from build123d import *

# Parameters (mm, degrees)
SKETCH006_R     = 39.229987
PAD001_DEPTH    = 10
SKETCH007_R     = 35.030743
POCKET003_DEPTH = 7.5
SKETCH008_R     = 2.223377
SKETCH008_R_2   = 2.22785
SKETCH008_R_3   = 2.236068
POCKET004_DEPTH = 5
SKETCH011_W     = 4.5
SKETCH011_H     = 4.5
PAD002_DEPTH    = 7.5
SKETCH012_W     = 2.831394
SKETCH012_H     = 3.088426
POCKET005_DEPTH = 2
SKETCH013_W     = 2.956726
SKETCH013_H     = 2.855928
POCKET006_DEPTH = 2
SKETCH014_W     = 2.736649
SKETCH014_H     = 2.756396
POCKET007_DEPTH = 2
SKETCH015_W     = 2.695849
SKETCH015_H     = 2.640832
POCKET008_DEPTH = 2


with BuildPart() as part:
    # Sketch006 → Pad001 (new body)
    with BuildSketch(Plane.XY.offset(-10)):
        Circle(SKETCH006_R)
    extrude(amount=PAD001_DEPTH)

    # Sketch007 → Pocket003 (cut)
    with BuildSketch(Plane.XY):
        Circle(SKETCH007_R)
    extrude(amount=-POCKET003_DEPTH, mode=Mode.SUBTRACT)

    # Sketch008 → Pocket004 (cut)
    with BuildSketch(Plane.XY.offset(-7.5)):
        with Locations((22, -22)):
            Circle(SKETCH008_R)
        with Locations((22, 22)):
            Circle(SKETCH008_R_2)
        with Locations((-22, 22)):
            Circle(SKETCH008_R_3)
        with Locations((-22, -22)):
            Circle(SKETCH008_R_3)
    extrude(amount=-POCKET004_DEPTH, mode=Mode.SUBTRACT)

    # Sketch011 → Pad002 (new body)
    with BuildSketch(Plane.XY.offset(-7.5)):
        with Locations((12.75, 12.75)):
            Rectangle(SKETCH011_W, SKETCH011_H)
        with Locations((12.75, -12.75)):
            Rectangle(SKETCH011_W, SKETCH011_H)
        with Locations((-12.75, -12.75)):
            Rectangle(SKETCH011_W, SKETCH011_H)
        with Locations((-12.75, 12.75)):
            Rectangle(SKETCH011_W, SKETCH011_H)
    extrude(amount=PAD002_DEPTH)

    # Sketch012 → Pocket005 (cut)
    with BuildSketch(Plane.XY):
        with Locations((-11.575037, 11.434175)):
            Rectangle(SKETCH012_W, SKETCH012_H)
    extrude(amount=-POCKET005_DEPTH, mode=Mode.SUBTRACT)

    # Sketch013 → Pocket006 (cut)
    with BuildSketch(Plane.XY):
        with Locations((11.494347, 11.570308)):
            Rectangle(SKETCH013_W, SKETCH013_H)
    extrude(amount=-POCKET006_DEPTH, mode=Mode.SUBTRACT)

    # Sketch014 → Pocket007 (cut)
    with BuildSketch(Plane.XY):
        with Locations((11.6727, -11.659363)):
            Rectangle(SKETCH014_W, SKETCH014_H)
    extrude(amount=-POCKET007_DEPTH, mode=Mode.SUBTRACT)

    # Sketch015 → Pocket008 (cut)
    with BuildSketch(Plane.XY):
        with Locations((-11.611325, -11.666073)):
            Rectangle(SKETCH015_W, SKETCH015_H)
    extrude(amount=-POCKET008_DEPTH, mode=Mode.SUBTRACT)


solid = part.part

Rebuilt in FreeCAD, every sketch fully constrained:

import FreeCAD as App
import Part
import Sketcher
from FreeCAD import Vector

doc = App.newDocument("Part")
body = doc.addObject("PartDesign::Body", "Body")

# Sketch on XY plane
sketch1 = body.newObject("Sketcher::SketchObject", "Sketch")
sketch1.AttachmentSupport = (doc.getObject("XY_Plane"), [""])
sketch1.MapMode = "FlatFace"
sketch1.AttachmentOffset = App.Placement(Vector(0, 0, -10), App.Rotation())
sketch1.addGeometry(Part.Circle(Vector(0, 0, 0), Vector(0, 0, 1), 39), False)
sketch1.addConstraint([
    Sketcher.Constraint("Coincident", 0, 3, -1, 1),
    Sketcher.Constraint("Diameter", 0, 78.459974),
])
pad1 = body.newObject("PartDesign::Pad", "Pad")
pad1.Profile = sketch1
pad1.Length = 10

# Sketch on XY plane
sketch2 = body.newObject("Sketcher::SketchObject", "Sketch001")
sketch2.AttachmentSupport = (doc.getObject("XY_Plane"), [""])
sketch2.MapMode = "FlatFace"
sketch2.addGeometry(Part.Circle(Vector(0, 0, 0), Vector(0, 0, 1), 35), False)
sketch2.addConstraint([
    Sketcher.Constraint("Coincident", 0, 3, -1, 1),
    Sketcher.Constraint("Diameter", 0, 70.061486),
])
pocket1 = body.newObject("PartDesign::Pocket", "Pocket")
pocket1.Profile = sketch2
pocket1.Length = 7.5

# Sketch on XY plane
sketch3 = body.newObject("Sketcher::SketchObject", "Sketch002")
sketch3.AttachmentSupport = (doc.getObject("XY_Plane"), [""])
sketch3.MapMode = "FlatFace"
sketch3.AttachmentOffset = App.Placement(Vector(0, 0, -7.5), App.Rotation())
sketch3.addGeometry([
    Part.Circle(Vector(22, -22, 0), Vector(0, 0, 1), 2.2),
    Part.Circle(Vector(22, 22, 0), Vector(0, 0, 1), 2.2),
    Part.Circle(Vector(-22, 22, 0), Vector(0, 0, 1), 2.2),
    Part.Circle(Vector(-22, -22, 0), Vector(0, 0, 1), 2.2),
], False)
sketch3.addConstraint([
    Sketcher.Constraint("Equal", 2, 3),
    Sketcher.Constraint("Symmetric", 0, 3, 2, 3, -1, 1),
    Sketcher.Constraint("Symmetric", 1, 3, 3, 3, -1, 1),
    Sketcher.Constraint("Symmetric", 1, 3, 2, 3, -2),
    Sketcher.Constraint("DistanceX", -1, 1, 0, 3, 22.0),
    Sketcher.Constraint("DistanceY", 0, 3, -1, 1, 22.0),
    Sketcher.Constraint("Diameter", 1, 4.4557),
    Sketcher.Constraint("Diameter", 0, 4.446754),
    Sketcher.Constraint("Diameter", 2, 4.472136),
])
pocket2 = body.newObject("PartDesign::Pocket", "Pocket001")
pocket2.Profile = sketch3
pocket2.Length = 5

# Sketch on XY plane
sketch4 = body.newObject("Sketcher::SketchObject", "Sketch003")
sketch4.AttachmentSupport = (doc.getObject("XY_Plane"), [""])
sketch4.MapMode = "FlatFace"
sketch4.AttachmentOffset = App.Placement(Vector(0, 0, -7.5), App.Rotation())
sketch4.addGeometry([
    Part.LineSegment(Vector(10.5, 15, 0), Vector(10.5, 10.5, 0)),  # 0
    Part.LineSegment(Vector(10.5, 10.5, 0), Vector(15, 10.5, 0)),  # 1
    Part.LineSegment(Vector(15, 10.5, 0), Vector(15, 15, 0)),  # 2
    Part.LineSegment(Vector(15, 15, 0), Vector(10.5, 15, 0)),  # 3
    Part.LineSegment(Vector(10.5, -10.5, 0), Vector(10.5, -15, 0)),  # 4
    Part.LineSegment(Vector(10.5, -15, 0), Vector(15, -15, 0)),  # 5
    Part.LineSegment(Vector(15, -15, 0), Vector(15, -10.5, 0)),  # 6
    Part.LineSegment(Vector(15, -10.5, 0), Vector(10.5, -10.5, 0)),  # 7
    Part.LineSegment(Vector(-15, -10.5, 0), Vector(-15, -15, 0)),  # 8
    Part.LineSegment(Vector(-15, -15, 0), Vector(-10.5, -15, 0)),  # 9
    Part.LineSegment(Vector(-10.5, -15, 0), Vector(-10.5, -10.5, 0)),  # 10
    Part.LineSegment(Vector(-10.5, -10.5, 0), Vector(-15, -10.5, 0)),  # 11
    Part.LineSegment(Vector(-15, 15, 0), Vector(-15, 10.5, 0)),  # 12
    Part.LineSegment(Vector(-15, 10.5, 0), Vector(-10.5, 10.5, 0)),  # 13
    Part.LineSegment(Vector(-10.5, 10.5, 0), Vector(-10.5, 15, 0)),  # 14
    Part.LineSegment(Vector(-10.5, 15, 0), Vector(-15, 15, 0)),  # 15
], False)
sketch4.addConstraint([
    Sketcher.Constraint("Coincident", 0, 2, 1, 1),
    Sketcher.Constraint("Coincident", 1, 2, 2, 1),
    Sketcher.Constraint("Coincident", 2, 2, 3, 1),
    Sketcher.Constraint("Coincident", 3, 2, 0, 1),
    Sketcher.Constraint("Coincident", 4, 2, 5, 1),
    Sketcher.Constraint("Coincident", 5, 2, 6, 1),
    Sketcher.Constraint("Coincident", 6, 2, 7, 1),
    Sketcher.Constraint("Coincident", 7, 2, 4, 1),
    Sketcher.Constraint("Coincident", 8, 2, 9, 1),
    Sketcher.Constraint("Coincident", 9, 2, 10, 1),
    Sketcher.Constraint("Coincident", 10, 2, 11, 1),
    Sketcher.Constraint("Coincident", 11, 2, 8, 1),
    Sketcher.Constraint("Coincident", 12, 2, 13, 1),
    Sketcher.Constraint("Coincident", 13, 2, 14, 1),
    Sketcher.Constraint("Coincident", 14, 2, 15, 1),
    Sketcher.Constraint("Coincident", 15, 2, 12, 1),
    Sketcher.Constraint("Vertical", 0),
    Sketcher.Constraint("Horizontal", 1),
    Sketcher.Constraint("Vertical", 2),
    Sketcher.Constraint("Horizontal", 3),
    Sketcher.Constraint("Vertical", 4),
    Sketcher.Constraint("Horizontal", 5),
    Sketcher.Constraint("Vertical", 6),
    Sketcher.Constraint("Horizontal", 7),
    Sketcher.Constraint("Vertical", 8),
    Sketcher.Constraint("Horizontal", 9),
    Sketcher.Constraint("Vertical", 10),
    Sketcher.Constraint("Horizontal", 11),
    Sketcher.Constraint("Vertical", 12),
    Sketcher.Constraint("Horizontal", 13),
    Sketcher.Constraint("Vertical", 14),
    Sketcher.Constraint("Horizontal", 15),
    Sketcher.Constraint("Symmetric", 2, 2, 8, 2, -1, 1),
    Sketcher.Constraint("Symmetric", 0, 2, 10, 2, -1, 1),
    Sketcher.Constraint("Symmetric", 6, 2, 12, 2, -1, 1),
    Sketcher.Constraint("Symmetric", 4, 2, 14, 2, -1, 1),
    Sketcher.Constraint("Symmetric", 5, 2, 8, 2, -2),
    Sketcher.Constraint("Symmetric", 7, 2, 10, 2, -2),
    Sketcher.Constraint("Equal", 15, 0),
    Sketcher.Constraint("DistanceX", 1, 1, 1, 2, 4.5),
    Sketcher.Constraint("DistanceX", -1, 1, 1, 2, 15.0),
    Sketcher.Constraint("DistanceY", -1, 1, 2, 2, 15.0),
])
pad2 = body.newObject("PartDesign::Pad", "Pad001")
pad2.Profile = sketch4
pad2.Length = 7.5

# Sketch on XY plane
sketch5 = body.newObject("Sketcher::SketchObject", "Sketch004")
sketch5.AttachmentSupport = (doc.getObject("XY_Plane"), [""])
sketch5.MapMode = "FlatFace"
sketch5.addGeometry([
    Part.LineSegment(Vector(-13, 13, 0), Vector(-13, 9.9, 0)),
    Part.LineSegment(Vector(-13, 9.9, 0), Vector(-10.2, 9.9, 0)),
    Part.LineSegment(Vector(-10.2, 9.9, 0), Vector(-10.2, 13, 0)),
    Part.LineSegment(Vector(-10.2, 13, 0), Vector(-13, 13, 0)),
], False)
sketch5.addConstraint([
    Sketcher.Constraint("Coincident", 0, 2, 1, 1),
    Sketcher.Constraint("Coincident", 1, 2, 2, 1),
    Sketcher.Constraint("Coincident", 2, 2, 3, 1),
    Sketcher.Constraint("Coincident", 3, 2, 0, 1),
    Sketcher.Constraint("Vertical", 0),
    Sketcher.Constraint("Horizontal", 1),
    Sketcher.Constraint("Vertical", 2),
    Sketcher.Constraint("Horizontal", 3),
    Sketcher.Constraint("DistanceX", 1, 1, 1, 2, 2.831394),
    Sketcher.Constraint("DistanceY", 0, 2, 0, 1, 3.088426),
    Sketcher.Constraint("DistanceX", 1, 2, -1, 1, 10.15934),
    Sketcher.Constraint("DistanceY", -1, 1, 2, 2, 12.978388),
])
pocket3 = body.newObject("PartDesign::Pocket", "Pocket002")
pocket3.Profile = sketch5
pocket3.Length = 2

# Sketch on XY plane
sketch6 = body.newObject("Sketcher::SketchObject", "Sketch005")
sketch6.AttachmentSupport = (doc.getObject("XY_Plane"), [""])
sketch6.MapMode = "FlatFace"
sketch6.addGeometry([
    Part.LineSegment(Vector(10, 13, 0), Vector(10, 10.1, 0)),
    Part.LineSegment(Vector(10, 10.1, 0), Vector(13, 10.1, 0)),
    Part.LineSegment(Vector(13, 10.1, 0), Vector(13, 13, 0)),
    Part.LineSegment(Vector(13, 13, 0), Vector(10, 13, 0)),
], False)
sketch6.addConstraint([
    Sketcher.Constraint("Coincident", 0, 2, 1, 1),
    Sketcher.Constraint("Coincident", 1, 2, 2, 1),
    Sketcher.Constraint("Coincident", 2, 2, 3, 1),
    Sketcher.Constraint("Coincident", 3, 2, 0, 1),
    Sketcher.Constraint("Vertical", 0),
    Sketcher.Constraint("Horizontal", 1),
    Sketcher.Constraint("Vertical", 2),
    Sketcher.Constraint("Horizontal", 3),
    Sketcher.Constraint("DistanceY", 0, 2, 0, 1, 2.855928),
    Sketcher.Constraint("DistanceX", 1, 1, 1, 2, 2.956726),
    Sketcher.Constraint("DistanceX", -1, 1, 1, 2, 12.97271),
    Sketcher.Constraint("DistanceY", -1, 1, 0, 2, 10.142344),
])
pocket4 = body.newObject("PartDesign::Pocket", "Pocket003")
pocket4.Profile = sketch6
pocket4.Length = 2

# Sketch on XY plane
sketch7 = body.newObject("Sketcher::SketchObject", "Sketch006")
sketch7.AttachmentSupport = (doc.getObject("XY_Plane"), [""])
sketch7.MapMode = "FlatFace"
sketch7.addGeometry([
    Part.LineSegment(Vector(10.3, -10.3, 0), Vector(10.3, -13, 0)),
    Part.LineSegment(Vector(10.3, -13, 0), Vector(13, -13, 0)),
    Part.LineSegment(Vector(13, -13, 0), Vector(13, -10.3, 0)),
    Part.LineSegment(Vector(13, -10.3, 0), Vector(10.3, -10.3, 0)),
], False)
sketch7.addConstraint([
    Sketcher.Constraint("Coincident", 0, 2, 1, 1),
    Sketcher.Constraint("Coincident", 1, 2, 2, 1),
    Sketcher.Constraint("Coincident", 2, 2, 3, 1),
    Sketcher.Constraint("Coincident", 3, 2, 0, 1),
    Sketcher.Constraint("Vertical", 0),
    Sketcher.Constraint("Horizontal", 1),
    Sketcher.Constraint("Vertical", 2),
    Sketcher.Constraint("Horizontal", 3),
    Sketcher.Constraint("DistanceX", 1, 1, 1, 2, 2.736649),
    Sketcher.Constraint("DistanceY", 0, 2, 0, 1, 2.756396),
    Sketcher.Constraint("DistanceY", 0, 2, -1, 1, 13.037561),
    Sketcher.Constraint("DistanceX", -1, 1, 0, 2, 10.304376),
])
pocket5 = body.newObject("PartDesign::Pocket", "Pocket004")
pocket5.Profile = sketch7
pocket5.Length = 2

# Sketch on XY plane
sketch8 = body.newObject("Sketcher::SketchObject", "Sketch007")
sketch8.AttachmentSupport = (doc.getObject("XY_Plane"), [""])
sketch8.MapMode = "FlatFace"
sketch8.addGeometry([
    Part.LineSegment(Vector(-13, -10.3, 0), Vector(-13, -13, 0)),
    Part.LineSegment(Vector(-13, -13, 0), Vector(-10.3, -13, 0)),
    Part.LineSegment(Vector(-10.3, -13, 0), Vector(-10.3, -10.3, 0)),
    Part.LineSegment(Vector(-10.3, -10.3, 0), Vector(-13, -10.3, 0)),
], False)
sketch8.addConstraint([
    Sketcher.Constraint("Coincident", 0, 2, 1, 1),
    Sketcher.Constraint("Coincident", 1, 2, 2, 1),
    Sketcher.Constraint("Coincident", 2, 2, 3, 1),
    Sketcher.Constraint("Coincident", 3, 2, 0, 1),
    Sketcher.Constraint("Vertical", 0),
    Sketcher.Constraint("Horizontal", 1),
    Sketcher.Constraint("Vertical", 2),
    Sketcher.Constraint("Horizontal", 3),
    Sketcher.Constraint("DistanceX", 1, 1, 1, 2, 2.695849),
    Sketcher.Constraint("DistanceX", 1, 2, -1, 1, 10.2634),
    Sketcher.Constraint("DistanceY", 0, 2, 0, 1, 2.640832),
    Sketcher.Constraint("DistanceY", 0, 2, -1, 1, 12.986489),
])
pocket6 = body.newObject("PartDesign::Pocket", "Pocket005")
pocket6.Profile = sketch8
pocket6.Length = 2

doc.recompute()
